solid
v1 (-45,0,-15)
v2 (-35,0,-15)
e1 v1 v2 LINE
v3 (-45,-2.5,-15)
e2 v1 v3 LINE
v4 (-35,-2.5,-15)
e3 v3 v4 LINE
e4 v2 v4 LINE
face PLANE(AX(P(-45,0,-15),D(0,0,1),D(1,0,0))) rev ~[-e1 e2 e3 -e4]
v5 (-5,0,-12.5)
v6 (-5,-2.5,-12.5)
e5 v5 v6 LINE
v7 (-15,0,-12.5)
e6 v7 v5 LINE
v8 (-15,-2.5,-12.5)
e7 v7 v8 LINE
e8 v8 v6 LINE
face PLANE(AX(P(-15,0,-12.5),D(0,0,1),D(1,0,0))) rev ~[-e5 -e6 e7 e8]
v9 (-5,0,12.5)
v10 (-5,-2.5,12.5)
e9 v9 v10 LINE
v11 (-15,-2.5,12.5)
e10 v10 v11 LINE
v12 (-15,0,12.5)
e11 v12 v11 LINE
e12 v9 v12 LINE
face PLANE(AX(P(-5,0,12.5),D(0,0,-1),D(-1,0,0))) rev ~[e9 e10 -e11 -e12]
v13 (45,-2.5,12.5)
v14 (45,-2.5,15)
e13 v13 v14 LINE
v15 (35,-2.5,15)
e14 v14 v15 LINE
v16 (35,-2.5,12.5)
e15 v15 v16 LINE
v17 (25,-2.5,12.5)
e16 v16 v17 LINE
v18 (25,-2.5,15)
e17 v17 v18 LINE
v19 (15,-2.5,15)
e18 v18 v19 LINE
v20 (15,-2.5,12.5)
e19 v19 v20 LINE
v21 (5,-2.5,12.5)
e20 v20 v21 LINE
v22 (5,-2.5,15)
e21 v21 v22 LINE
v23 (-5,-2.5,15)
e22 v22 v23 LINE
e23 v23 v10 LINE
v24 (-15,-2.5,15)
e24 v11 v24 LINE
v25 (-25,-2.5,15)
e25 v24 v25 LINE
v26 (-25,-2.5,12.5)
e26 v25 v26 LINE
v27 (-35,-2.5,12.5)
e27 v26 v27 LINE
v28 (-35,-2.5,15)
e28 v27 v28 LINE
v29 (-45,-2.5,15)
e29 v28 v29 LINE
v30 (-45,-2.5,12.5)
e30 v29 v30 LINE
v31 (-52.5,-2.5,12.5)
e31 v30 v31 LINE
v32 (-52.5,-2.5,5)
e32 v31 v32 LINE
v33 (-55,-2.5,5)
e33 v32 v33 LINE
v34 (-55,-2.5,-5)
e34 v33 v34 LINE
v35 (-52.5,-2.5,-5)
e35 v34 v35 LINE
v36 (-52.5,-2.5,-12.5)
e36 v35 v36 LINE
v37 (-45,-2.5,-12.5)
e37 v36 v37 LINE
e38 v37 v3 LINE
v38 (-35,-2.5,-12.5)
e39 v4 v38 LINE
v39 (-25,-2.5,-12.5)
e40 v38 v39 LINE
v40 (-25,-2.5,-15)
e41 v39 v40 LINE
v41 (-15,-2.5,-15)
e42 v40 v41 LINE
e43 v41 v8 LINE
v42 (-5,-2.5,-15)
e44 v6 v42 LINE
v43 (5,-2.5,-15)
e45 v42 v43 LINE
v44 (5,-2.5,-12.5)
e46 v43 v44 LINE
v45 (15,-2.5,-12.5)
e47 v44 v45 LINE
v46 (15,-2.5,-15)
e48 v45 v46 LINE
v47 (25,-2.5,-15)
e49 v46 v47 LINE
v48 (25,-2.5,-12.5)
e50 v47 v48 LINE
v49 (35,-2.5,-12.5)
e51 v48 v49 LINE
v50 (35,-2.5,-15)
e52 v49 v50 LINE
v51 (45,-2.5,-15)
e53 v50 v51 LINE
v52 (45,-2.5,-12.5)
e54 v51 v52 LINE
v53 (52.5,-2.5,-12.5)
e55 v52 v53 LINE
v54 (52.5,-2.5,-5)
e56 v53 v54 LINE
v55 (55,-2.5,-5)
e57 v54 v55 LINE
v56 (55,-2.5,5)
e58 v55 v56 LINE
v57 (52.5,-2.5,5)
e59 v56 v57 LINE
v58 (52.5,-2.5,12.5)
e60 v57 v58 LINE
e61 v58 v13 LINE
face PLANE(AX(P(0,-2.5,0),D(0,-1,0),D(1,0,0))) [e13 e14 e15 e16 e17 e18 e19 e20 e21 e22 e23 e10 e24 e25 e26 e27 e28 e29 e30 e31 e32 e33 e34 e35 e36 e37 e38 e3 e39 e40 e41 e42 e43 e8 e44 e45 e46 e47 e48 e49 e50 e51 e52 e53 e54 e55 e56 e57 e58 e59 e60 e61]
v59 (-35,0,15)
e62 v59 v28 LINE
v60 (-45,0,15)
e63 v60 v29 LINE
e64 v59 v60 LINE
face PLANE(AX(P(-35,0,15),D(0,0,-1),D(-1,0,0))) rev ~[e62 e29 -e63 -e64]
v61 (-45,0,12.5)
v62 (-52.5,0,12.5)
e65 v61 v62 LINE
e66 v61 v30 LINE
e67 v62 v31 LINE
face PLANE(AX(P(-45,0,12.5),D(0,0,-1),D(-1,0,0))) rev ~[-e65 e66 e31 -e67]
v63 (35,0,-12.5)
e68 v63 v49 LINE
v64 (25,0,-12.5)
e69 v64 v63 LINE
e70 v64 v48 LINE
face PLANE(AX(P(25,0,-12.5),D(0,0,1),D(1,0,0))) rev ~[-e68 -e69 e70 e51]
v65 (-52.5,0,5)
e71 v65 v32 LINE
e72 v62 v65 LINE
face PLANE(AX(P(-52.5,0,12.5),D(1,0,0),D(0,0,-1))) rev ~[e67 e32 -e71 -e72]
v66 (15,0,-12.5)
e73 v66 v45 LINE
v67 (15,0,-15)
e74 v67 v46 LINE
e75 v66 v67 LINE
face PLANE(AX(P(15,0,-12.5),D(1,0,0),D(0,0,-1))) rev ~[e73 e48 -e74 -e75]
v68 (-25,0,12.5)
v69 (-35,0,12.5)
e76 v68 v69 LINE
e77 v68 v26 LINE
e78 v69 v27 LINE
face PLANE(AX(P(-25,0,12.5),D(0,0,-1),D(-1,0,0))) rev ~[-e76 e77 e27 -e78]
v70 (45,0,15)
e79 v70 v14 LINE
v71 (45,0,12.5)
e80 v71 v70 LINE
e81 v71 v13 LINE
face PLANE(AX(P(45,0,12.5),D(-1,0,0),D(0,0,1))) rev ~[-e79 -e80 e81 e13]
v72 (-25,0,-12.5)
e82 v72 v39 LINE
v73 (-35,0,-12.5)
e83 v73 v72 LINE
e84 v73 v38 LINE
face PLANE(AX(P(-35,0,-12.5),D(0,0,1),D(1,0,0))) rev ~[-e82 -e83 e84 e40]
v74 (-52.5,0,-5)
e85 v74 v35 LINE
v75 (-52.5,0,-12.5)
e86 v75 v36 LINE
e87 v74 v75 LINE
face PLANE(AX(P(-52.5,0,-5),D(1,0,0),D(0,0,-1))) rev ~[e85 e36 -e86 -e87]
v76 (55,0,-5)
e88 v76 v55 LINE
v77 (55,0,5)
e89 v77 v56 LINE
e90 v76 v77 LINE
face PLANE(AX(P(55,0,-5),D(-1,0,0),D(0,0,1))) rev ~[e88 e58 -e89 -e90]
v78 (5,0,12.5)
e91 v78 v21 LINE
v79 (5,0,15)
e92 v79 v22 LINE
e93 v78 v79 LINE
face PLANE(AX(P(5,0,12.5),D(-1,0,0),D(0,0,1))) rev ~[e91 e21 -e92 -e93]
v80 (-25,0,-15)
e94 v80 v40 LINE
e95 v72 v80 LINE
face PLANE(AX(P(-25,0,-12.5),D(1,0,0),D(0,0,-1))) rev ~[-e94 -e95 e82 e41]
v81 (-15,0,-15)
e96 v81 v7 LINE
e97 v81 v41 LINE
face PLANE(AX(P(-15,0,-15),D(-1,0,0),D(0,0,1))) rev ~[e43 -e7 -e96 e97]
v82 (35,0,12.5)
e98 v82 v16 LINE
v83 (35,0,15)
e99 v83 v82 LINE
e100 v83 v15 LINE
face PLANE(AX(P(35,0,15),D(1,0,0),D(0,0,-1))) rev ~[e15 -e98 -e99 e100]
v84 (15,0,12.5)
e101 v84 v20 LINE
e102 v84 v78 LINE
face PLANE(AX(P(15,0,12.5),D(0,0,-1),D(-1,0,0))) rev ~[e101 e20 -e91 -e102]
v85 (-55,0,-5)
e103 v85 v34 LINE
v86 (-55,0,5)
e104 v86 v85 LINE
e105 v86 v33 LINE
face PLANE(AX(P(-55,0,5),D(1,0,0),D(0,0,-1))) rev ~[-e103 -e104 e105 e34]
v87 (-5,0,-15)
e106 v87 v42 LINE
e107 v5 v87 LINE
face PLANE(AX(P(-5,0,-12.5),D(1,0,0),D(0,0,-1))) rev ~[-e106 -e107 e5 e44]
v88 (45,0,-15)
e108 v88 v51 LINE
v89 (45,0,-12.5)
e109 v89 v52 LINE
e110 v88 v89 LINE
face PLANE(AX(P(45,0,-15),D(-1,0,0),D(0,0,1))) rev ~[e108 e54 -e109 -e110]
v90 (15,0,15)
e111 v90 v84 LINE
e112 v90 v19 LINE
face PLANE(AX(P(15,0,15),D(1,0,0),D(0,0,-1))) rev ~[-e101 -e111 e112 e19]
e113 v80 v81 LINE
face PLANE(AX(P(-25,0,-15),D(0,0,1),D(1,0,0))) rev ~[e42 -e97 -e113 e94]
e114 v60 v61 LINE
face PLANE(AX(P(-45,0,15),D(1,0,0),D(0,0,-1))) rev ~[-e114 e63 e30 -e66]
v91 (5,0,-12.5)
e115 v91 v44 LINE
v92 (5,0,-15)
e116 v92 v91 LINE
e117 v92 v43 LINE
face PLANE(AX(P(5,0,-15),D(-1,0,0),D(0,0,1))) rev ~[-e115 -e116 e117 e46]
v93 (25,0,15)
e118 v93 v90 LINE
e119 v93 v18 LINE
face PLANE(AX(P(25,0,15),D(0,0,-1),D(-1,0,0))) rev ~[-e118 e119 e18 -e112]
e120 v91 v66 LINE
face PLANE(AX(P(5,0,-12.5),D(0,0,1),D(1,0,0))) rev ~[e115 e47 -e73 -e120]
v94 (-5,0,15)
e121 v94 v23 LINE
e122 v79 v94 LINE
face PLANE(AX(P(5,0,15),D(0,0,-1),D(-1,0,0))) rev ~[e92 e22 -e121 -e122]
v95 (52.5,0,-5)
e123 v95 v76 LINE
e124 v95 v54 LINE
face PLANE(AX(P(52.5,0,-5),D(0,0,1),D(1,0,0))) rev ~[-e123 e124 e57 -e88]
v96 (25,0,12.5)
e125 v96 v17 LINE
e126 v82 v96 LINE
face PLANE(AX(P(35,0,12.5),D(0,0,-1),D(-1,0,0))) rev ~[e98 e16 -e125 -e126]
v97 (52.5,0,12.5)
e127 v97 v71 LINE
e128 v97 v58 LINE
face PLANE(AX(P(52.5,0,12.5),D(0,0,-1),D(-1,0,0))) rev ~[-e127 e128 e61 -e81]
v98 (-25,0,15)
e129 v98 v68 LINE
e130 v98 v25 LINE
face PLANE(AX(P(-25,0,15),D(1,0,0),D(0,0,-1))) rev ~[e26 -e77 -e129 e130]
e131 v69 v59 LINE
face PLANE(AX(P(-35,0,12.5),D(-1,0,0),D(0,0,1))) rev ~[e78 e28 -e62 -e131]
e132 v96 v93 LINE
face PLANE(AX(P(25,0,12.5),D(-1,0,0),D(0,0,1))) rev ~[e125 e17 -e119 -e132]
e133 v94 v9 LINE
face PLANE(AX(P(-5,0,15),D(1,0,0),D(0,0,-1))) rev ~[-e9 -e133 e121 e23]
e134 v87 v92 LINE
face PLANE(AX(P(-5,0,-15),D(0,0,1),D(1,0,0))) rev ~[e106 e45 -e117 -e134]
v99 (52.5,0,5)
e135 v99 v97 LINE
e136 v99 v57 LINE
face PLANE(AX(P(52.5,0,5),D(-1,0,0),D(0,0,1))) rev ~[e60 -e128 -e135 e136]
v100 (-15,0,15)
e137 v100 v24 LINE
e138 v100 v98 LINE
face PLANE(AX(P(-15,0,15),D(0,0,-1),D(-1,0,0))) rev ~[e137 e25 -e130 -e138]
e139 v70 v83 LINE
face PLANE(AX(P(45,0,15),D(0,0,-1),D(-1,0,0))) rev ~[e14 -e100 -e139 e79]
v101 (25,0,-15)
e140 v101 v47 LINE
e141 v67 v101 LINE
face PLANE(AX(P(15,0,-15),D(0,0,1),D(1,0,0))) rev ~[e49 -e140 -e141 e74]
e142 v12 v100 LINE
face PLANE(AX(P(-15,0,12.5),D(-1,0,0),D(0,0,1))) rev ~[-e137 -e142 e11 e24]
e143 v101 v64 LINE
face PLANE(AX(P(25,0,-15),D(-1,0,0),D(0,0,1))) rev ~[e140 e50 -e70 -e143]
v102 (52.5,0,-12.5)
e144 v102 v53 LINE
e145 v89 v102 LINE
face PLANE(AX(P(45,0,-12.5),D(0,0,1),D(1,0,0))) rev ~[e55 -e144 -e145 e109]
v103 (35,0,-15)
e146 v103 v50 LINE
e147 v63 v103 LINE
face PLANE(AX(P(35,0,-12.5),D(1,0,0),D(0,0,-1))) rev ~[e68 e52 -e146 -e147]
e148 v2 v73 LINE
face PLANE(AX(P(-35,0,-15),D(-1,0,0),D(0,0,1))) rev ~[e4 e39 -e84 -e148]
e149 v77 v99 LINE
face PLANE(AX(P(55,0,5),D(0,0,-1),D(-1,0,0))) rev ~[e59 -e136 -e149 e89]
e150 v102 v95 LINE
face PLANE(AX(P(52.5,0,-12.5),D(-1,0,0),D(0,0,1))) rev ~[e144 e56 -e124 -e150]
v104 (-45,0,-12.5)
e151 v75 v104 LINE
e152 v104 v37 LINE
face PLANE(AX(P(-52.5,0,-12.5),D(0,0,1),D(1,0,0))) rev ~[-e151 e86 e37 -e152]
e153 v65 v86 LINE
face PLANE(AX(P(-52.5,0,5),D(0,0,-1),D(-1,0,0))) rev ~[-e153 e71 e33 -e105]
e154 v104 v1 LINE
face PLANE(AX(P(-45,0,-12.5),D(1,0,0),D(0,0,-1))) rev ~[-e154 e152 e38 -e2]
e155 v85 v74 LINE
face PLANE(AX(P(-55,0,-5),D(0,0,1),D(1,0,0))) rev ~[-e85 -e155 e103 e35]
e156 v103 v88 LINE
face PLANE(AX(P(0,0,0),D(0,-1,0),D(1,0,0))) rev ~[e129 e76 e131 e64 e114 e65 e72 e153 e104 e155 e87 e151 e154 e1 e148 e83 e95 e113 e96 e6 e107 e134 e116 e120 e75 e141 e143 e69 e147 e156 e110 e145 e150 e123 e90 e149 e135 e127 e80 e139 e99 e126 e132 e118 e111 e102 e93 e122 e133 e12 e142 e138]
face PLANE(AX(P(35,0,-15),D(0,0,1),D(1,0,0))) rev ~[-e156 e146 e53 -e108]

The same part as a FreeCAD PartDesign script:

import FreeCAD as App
import Part
import Sketcher

V = App.Vector

doc = App.newDocument("Part")
body = doc.addObject("PartDesign::Body", "Body")

sketch1 = body.newObject("Sketcher::SketchObject", "Sketch")
sketch1.AttachmentSupport = (doc.getObject("XZ_Plane"), [""])
sketch1.MapMode = "FlatFace"
sketch1.addGeometry(Part.LineSegment(V(45, 12.5, 0), V(45, 15, 0)), False)
sketch1.addGeometry(Part.LineSegment(V(45, 15, 0), V(35, 15, 0)), False)
sketch1.addGeometry(Part.LineSegment(V(35, 15, 0), V(35, 12.5, 0)), False)
sketch1.addGeometry(Part.LineSegment(V(35, 12.5, 0), V(25, 12.5, 0)), False)
sketch1.addGeometry(Part.LineSegment(V(25, 12.5, 0), V(25, 15, 0)), False)
sketch1.addGeometry(Part.LineSegment(V(25, 15, 0), V(15, 15, 0)), False)
sketch1.addGeometry(Part.LineSegment(V(15, 15, 0), V(15, 12.5, 0)), False)
sketch1.addGeometry(Part.LineSegment(V(15, 12.5, 0), V(5, 12.5, 0)), False)
sketch1.addGeometry(Part.LineSegment(V(5, 12.5, 0), V(5, 15, 0)), False)
sketch1.addGeometry(Part.LineSegment(V(5, 15, 0), V(-5, 15, 0)), False)
sketch1.addGeometry(Part.LineSegment(V(-5, 15, 0), V(-5, 12.5, 0)), False)
sketch1.addGeometry(Part.LineSegment(V(-5, 12.5, 0), V(-15, 12.5, 0)), False)
sketch1.addGeometry(Part.LineSegment(V(-15, 12.5, 0), V(-15, 15, 0)), False)
sketch1.addGeometry(Part.LineSegment(V(-15, 15, 0), V(-25, 15, 0)), False)
sketch1.addGeometry(Part.LineSegment(V(-25, 15, 0), V(-25, 12.5, 0)), False)
sketch1.addGeometry(Part.LineSegment(V(-25, 12.5, 0), V(-35, 12.5, 0)), False)
sketch1.addGeometry(Part.LineSegment(V(-35, 12.5, 0), V(-35, 15, 0)), False)
sketch1.addGeometry(Part.LineSegment(V(-35, 15, 0), V(-45, 15, 0)), False)
sketch1.addGeometry(Part.LineSegment(V(-45, 15, 0), V(-45, 12.5, 0)), False)
sketch1.addGeometry(Part.LineSegment(V(-45, 12.5, 0), V(-52.5, 12.5, 0)), False)
sketch1.addGeometry(Part.LineSegment(V(-52.5, 12.5, 0), V(-52.5, 5, 0)), False)
sketch1.addGeometry(Part.LineSegment(V(-52.5, 5, 0), V(-55, 5, 0)), False)
sketch1.addGeometry(Part.LineSegment(V(-55, 5, 0), V(-55, -5, 0)), False)
sketch1.addGeometry(Part.LineSegment(V(-55, -5, 0), V(-52.5, -5, 0)), False)
sketch1.addGeometry(Part.LineSegment(V(-52.5, -5, 0), V(-52.5, -12.5, 0)), False)
sketch1.addGeometry(Part.LineSegment(V(-52.5, -12.5, 0), V(-45, -12.5, 0)), False)
sketch1.addGeometry(Part.LineSegment(V(-45, -12.5, 0), V(-45, -15, 0)), False)
sketch1.addGeometry(Part.LineSegment(V(-45, -15, 0), V(-35, -15, 0)), False)
sketch1.addGeometry(Part.LineSegment(V(-35, -15, 0), V(-35, -12.5, 0)), False)
sketch1.addGeometry(Part.LineSegment(V(-35, -12.5, 0), V(-25, -12.5, 0)), False)
sketch1.addGeometry(Part.LineSegment(V(-25, -12.5, 0), V(-25, -15, 0)), False)
sketch1.addGeometry(Part.LineSegment(V(-25, -15, 0), V(-15, -15, 0)), False)
sketch1.addGeometry(Part.LineSegment(V(-15, -15, 0), V(-15, -12.5, 0)), False)
sketch1.addGeometry(Part.LineSegment(V(-15, -12.5, 0), V(-5, -12.5, 0)), False)
sketch1.addGeometry(Part.LineSegment(V(-5, -12.5, 0), V(-5, -15, 0)), False)
sketch1.addGeometry(Part.LineSegment(V(-5, -15, 0), V(5, -15, 0)), False)
sketch1.addGeometry(Part.LineSegment(V(5, -15, 0), V(5, -12.5, 0)), False)
sketch1.addGeometry(Part.LineSegment(V(5, -12.5, 0), V(15, -12.5, 0)), False)
sketch1.addGeometry(Part.LineSegment(V(15, -12.5, 0), V(15, -15, 0)), False)
sketch1.addGeometry(Part.LineSegment(V(15, -15, 0), V(25, -15, 0)), False)
sketch1.addGeometry(Part.LineSegment(V(25, -15, 0), V(25, -12.5, 0)), False)
sketch1.addGeometry(Part.LineSegment(V(25, -12.5, 0), V(35, -12.5, 0)), False)
sketch1.addGeometry(Part.LineSegment(V(35, -12.5, 0), V(35, -15, 0)), False)
sketch1.addGeometry(Part.LineSegment(V(35, -15, 0), V(45, -15, 0)), False)
sketch1.addGeometry(Part.LineSegment(V(45, -15, 0), V(45, -12.5, 0)), False)
sketch1.addGeometry(Part.LineSegment(V(45, -12.5, 0), V(52.5, -12.5, 0)), False)
sketch1.addGeometry(Part.LineSegment(V(52.5, -12.5, 0), V(52.5, -5, 0)), False)
sketch1.addGeometry(Part.LineSegment(V(52.5, -5, 0), V(55, -5, 0)), False)
sketch1.addGeometry(Part.LineSegment(V(55, -5, 0), V(55, 5, 0)), False)
sketch1.addGeometry(Part.LineSegment(V(55, 5, 0), V(52.5, 5, 0)), False)
sketch1.addGeometry(Part.LineSegment(V(52.5, 5, 0), V(52.5, 12.5, 0)), False)
sketch1.addGeometry(Part.LineSegment(V(52.5, 12.5, 0), V(45, 12.5, 0)), False)
sketch1.addConstraint(Sketcher.Constraint("Coincident", 0, 2, 1, 1))
sketch1.addConstraint(Sketcher.Constraint("Coincident", 1, 2, 2, 1))
sketch1.addConstraint(Sketcher.Constraint("Coincident", 2, 2, 3, 1))
sketch1.addConstraint(Sketcher.Constraint("Coincident", 3, 2, 4, 1))
sketch1.addConstraint(Sketcher.Constraint("Coincident", 4, 2, 5, 1))
sketch1.addConstraint(Sketcher.Constraint("Coincident", 5, 2, 6, 1))
sketch1.addConstraint(Sketcher.Constraint("Coincident", 6, 2, 7, 1))
sketch1.addConstraint(Sketcher.Constraint("Coincident", 7, 2, 8, 1))
sketch1.addConstraint(Sketcher.Constraint("Coincident", 8, 2, 9, 1))
sketch1.addConstraint(Sketcher.Constraint("Coincident", 9, 2, 10, 1))
sketch1.addConstraint(Sketcher.Constraint("Coincident", 10, 2, 11, 1))
sketch1.addConstraint(Sketcher.Constraint("Coincident", 11, 2, 12, 1))
sketch1.addConstraint(Sketcher.Constraint("Coincident", 12, 2, 13, 1))
sketch1.addConstraint(Sketcher.Constraint("Coincident", 13, 2, 14, 1))
sketch1.addConstraint(Sketcher.Constraint("Coincident", 14, 2, 15, 1))
sketch1.addConstraint(Sketcher.Constraint("Coincident", 15, 2, 16, 1))
sketch1.addConstraint(Sketcher.Constraint("Coincident", 16, 2, 17, 1))
sketch1.addConstraint(Sketcher.Constraint("Coincident", 17, 2, 18, 1))
sketch1.addConstraint(Sketcher.Constraint("Coincident", 18, 2, 19, 1))
sketch1.addConstraint(Sketcher.Constraint("Coincident", 19, 2, 20, 1))
sketch1.addConstraint(Sketcher.Constraint("Coincident", 20, 2, 21, 1))
sketch1.addConstraint(Sketcher.Constraint("Coincident", 21, 2, 22, 1))
sketch1.addConstraint(Sketcher.Constraint("Coincident", 22, 2, 23, 1))
sketch1.addConstraint(Sketcher.Constraint("Coincident", 23, 2, 24, 1))
sketch1.addConstraint(Sketcher.Constraint("Coincident", 24, 2, 25, 1))
sketch1.addConstraint(Sketcher.Constraint("Coincident", 25, 2, 26, 1))
sketch1.addConstraint(Sketcher.Constraint("Coincident", 26, 2, 27, 1))
sketch1.addConstraint(Sketcher.Constraint("Coincident", 27, 2, 28, 1))
sketch1.addConstraint(Sketcher.Constraint("Coincident", 28, 2, 29, 1))
sketch1.addConstraint(Sketcher.Constraint("Coincident", 29, 2, 30, 1))
sketch1.addConstraint(Sketcher.Constraint("Coincident", 30, 2, 31, 1))
sketch1.addConstraint(Sketcher.Constraint("Coincident", 31, 2, 32, 1))
sketch1.addConstraint(Sketcher.Constraint("Coincident", 32, 2, 33, 1))
sketch1.addConstraint(Sketcher.Constraint("Coincident", 33, 2, 34, 1))
sketch1.addConstraint(Sketcher.Constraint("Coincident", 34, 2, 35, 1))
sketch1.addConstraint(Sketcher.Constraint("Coincident", 35, 2, 36, 1))
sketch1.addConstraint(Sketcher.Constraint("Coincident", 36, 2, 37, 1))
sketch1.addConstraint(Sketcher.Constraint("Coincident", 37, 2, 38, 1))
sketch1.addConstraint(Sketcher.Constraint("Coincident", 38, 2, 39, 1))
sketch1.addConstraint(Sketcher.Constraint("Coincident", 39, 2, 40, 1))
sketch1.addConstraint(Sketcher.Constraint("Coincident", 40, 2, 41, 1))
sketch1.addConstraint(Sketcher.Constraint("Coincident", 41, 2, 42, 1))
sketch1.addConstraint(Sketcher.Constraint("Coincident", 42, 2, 43, 1))
sketch1.addConstraint(Sketcher.Constraint("Coincident", 43, 2, 44, 1))
sketch1.addConstraint(Sketcher.Constraint("Coincident", 44, 2, 45, 1))
sketch1.addConstraint(Sketcher.Constraint("Coincident", 45, 2, 46, 1))
sketch1.addConstraint(Sketcher.Constraint("Coincident", 46, 2, 47, 1))
sketch1.addConstraint(Sketcher.Constraint("Coincident", 47, 2, 48, 1))
sketch1.addConstraint(Sketcher.Constraint("Coincident", 48, 2, 49, 1))
sketch1.addConstraint(Sketcher.Constraint("Coincident", 49, 2, 50, 1))
sketch1.addConstraint(Sketcher.Constraint("Coincident", 50, 2, 51, 1))
sketch1.addConstraint(Sketcher.Constraint("Coincident", 51, 2, 0, 1))
sketch1.addConstraint(Sketcher.Constraint("Vertical", 0))
sketch1.addConstraint(Sketcher.Constraint("Horizontal", 1))
sketch1.addConstraint(Sketcher.Constraint("Vertical", 2))
sketch1.addConstraint(Sketcher.Constraint("Horizontal", 3))
sketch1.addConstraint(Sketcher.Constraint("Vertical", 4))
sketch1.addConstraint(Sketcher.Constraint("Horizontal", 5))
sketch1.addConstraint(Sketcher.Constraint("Vertical", 6))
sketch1.addConstraint(Sketcher.Constraint("Horizontal", 7))
sketch1.addConstraint(Sketcher.Constraint("Vertical", 8))
sketch1.addConstraint(Sketcher.Constraint("Horizontal", 9))
sketch1.addConstraint(Sketcher.Constraint("Vertical", 10))
sketch1.addConstraint(Sketcher.Constraint("Horizontal", 11))
sketch1.addConstraint(Sketcher.Constraint("Vertical", 12))
sketch1.addConstraint(Sketcher.Constraint("Horizontal", 13))
sketch1.addConstraint(Sketcher.Constraint("Vertical", 14))
sketch1.addConstraint(Sketcher.Constraint("Horizontal", 15))
sketch1.addConstraint(Sketcher.Constraint("Vertical", 16))
sketch1.addConstraint(Sketcher.Constraint("Horizontal", 17))
sketch1.addConstraint(Sketcher.Constraint("Vertical", 18))
sketch1.addConstraint(Sketcher.Constraint("Horizontal", 19))
sketch1.addConstraint(Sketcher.Constraint("Vertical", 20))
sketch1.addConstraint(Sketcher.Constraint("Horizontal", 21))
sketch1.addConstraint(Sketcher.Constraint("Vertical", 22))
sketch1.addConstraint(Sketcher.Constraint("Horizontal", 23))
sketch1.addConstraint(Sketcher.Constraint("Vertical", 24))
sketch1.addConstraint(Sketcher.Constraint("Horizontal", 25))
sketch1.addConstraint(Sketcher.Constraint("Vertical", 26))
sketch1.addConstraint(Sketcher.Constraint("Horizontal", 27))
sketch1.addConstraint(Sketcher.Constraint("Vertical", 28))
sketch1.addConstraint(Sketcher.Constraint("Horizontal", 29))
sketch1.addConstraint(Sketcher.Constraint("Vertical", 30))
sketch1.addConstraint(Sketcher.Constraint("Horizontal", 31))
sketch1.addConstraint(Sketcher.Constraint("Vertical", 32))
sketch1.addConstraint(Sketcher.Constraint("Horizontal", 33))
sketch1.addConstraint(Sketcher.Constraint("Vertical", 34))
sketch1.addConstraint(Sketcher.Constraint("Horizontal", 35))
sketch1.addConstraint(Sketcher.Constraint("Vertical", 36))
sketch1.addConstraint(Sketcher.Constraint("Horizontal", 37))
sketch1.addConstraint(Sketcher.Constraint("Vertical", 38))
sketch1.addConstraint(Sketcher.Constraint("Horizontal", 39))
sketch1.addConstraint(Sketcher.Constraint("Vertical", 40))
sketch1.addConstraint(Sketcher.Constraint("Horizontal", 41))
sketch1.addConstraint(Sketcher.Constraint("Vertical", 42))
sketch1.addConstraint(Sketcher.Constraint("Horizontal", 43))
sketch1.addConstraint(Sketcher.Constraint("Vertical", 44))
sketch1.addConstraint(Sketcher.Constraint("Horizontal", 45))
sketch1.addConstraint(Sketcher.Constraint("Vertical", 46))
sketch1.addConstraint(Sketcher.Constraint("Horizontal", 47))
sketch1.addConstraint(Sketcher.Constraint("Vertical", 48))
sketch1.addConstraint(Sketcher.Constraint("Horizontal", 49))
sketch1.addConstraint(Sketcher.Constraint("Vertical", 50))
sketch1.addConstraint(Sketcher.Constraint("Horizontal", 51))
sketch1.addConstraint(Sketcher.Constraint("Symmetric", 0, 2, 26, 2, -1, 1))
sketch1.addConstraint(Sketcher.Constraint("Symmetric", 2, 2, 28, 2, -1, 1))
sketch1.addConstraint(Sketcher.Constraint("Symmetric", 4, 2, 30, 2, -1, 1))
sketch1.addConstraint(Sketcher.Constraint("Symmetric", 6, 2, 32, 2, -1, 1))
sketch1.addConstraint(Sketcher.Constraint("Symmetric", 8, 2, 34, 2, -1, 1))
sketch1.addConstraint(Sketcher.Constraint("Symmetric", 10, 2, 36, 2, -1, 1))
sketch1.addConstraint(Sketcher.Constraint("Symmetric", 12, 2, 38, 2, -1, 1))
sketch1.addConstraint(Sketcher.Constraint("Symmetric", 14, 2, 40, 2, -1, 1))
sketch1.addConstraint(Sketcher.Constraint("Symmetric", 16, 2, 42, 2, -1, 1))
sketch1.addConstraint(Sketcher.Constraint("Symmetric", 18, 2, 44, 2, -1, 1))
sketch1.addConstraint(Sketcher.Constraint("Symmetric", 20, 2, 46, 2, -1, 1))
sketch1.addConstraint(Sketcher.Constraint("Symmetric", 22, 2, 48, 2, -1, 1))
sketch1.addConstraint(Sketcher.Constraint("Symmetric", 24, 2, 50, 2, -1, 1))
sketch1.addConstraint(Sketcher.Constraint("Symmetric", 7, 2, 10, 2, -2))
sketch1.addConstraint(Sketcher.Constraint("Symmetric", 5, 2, 12, 2, -2))
sketch1.addConstraint(Sketcher.Constraint("Symmetric", 3, 2, 14, 2, -2))
sketch1.addConstraint(Sketcher.Constraint("Symmetric", 1, 2, 16, 2, -2))
sketch1.addConstraint(Sketcher.Constraint("Symmetric", 25, 2, 44, 2, -2))
sketch1.addConstraint(Sketcher.Constraint("Symmetric", 23, 2, 46, 2, -2))
sketch1.addConstraint(Sketcher.Constraint("Horizontal", 1, 2, 4, 2))
sketch1.addConstraint(Sketcher.Constraint("Horizontal", 3, 2, 6, 2))
sketch1.addConstraint(Sketcher.Constraint("Horizontal", 5, 2, 8, 2))
sketch1.addConstraint(Sketcher.Constraint("Horizontal", 15, 2, 18, 2))
sketch1.addConstraint(Sketcher.Constraint("Equal", 1, 3))
sketch1.addConstraint(Sketcher.Constraint("Equal", 3, 5))
sketch1.addConstraint(Sketcher.Constraint("Equal", 5, 7))
sketch1.addConstraint(Sketcher.Constraint("Equal", 7, 9))
sketch1.addConstraint(Sketcher.Constraint("Equal", 49, 0))
sketch1.addConstraint(Sketcher.Constraint("Equal", 51, 20))
sketch1.addConstraint(Sketcher.Constraint("Equal", 43, 22))
sketch1.addConstraint(Sketcher.Constraint("DistanceX", 1, 2, 1, 1, 10.0))
sketch1.addConstraint(Sketcher.Constraint("DistanceX", 19, 2, 19, 1, 7.5))
sketch1.addConstraint(Sketcher.Constraint("DistanceX", 21, 2, 21, 1, 2.5))
pad1 = body.newObject("PartDesign::Pad", "Pad")
pad1.Profile = sketch1
pad1.Length = 2.5

doc.recompute()
